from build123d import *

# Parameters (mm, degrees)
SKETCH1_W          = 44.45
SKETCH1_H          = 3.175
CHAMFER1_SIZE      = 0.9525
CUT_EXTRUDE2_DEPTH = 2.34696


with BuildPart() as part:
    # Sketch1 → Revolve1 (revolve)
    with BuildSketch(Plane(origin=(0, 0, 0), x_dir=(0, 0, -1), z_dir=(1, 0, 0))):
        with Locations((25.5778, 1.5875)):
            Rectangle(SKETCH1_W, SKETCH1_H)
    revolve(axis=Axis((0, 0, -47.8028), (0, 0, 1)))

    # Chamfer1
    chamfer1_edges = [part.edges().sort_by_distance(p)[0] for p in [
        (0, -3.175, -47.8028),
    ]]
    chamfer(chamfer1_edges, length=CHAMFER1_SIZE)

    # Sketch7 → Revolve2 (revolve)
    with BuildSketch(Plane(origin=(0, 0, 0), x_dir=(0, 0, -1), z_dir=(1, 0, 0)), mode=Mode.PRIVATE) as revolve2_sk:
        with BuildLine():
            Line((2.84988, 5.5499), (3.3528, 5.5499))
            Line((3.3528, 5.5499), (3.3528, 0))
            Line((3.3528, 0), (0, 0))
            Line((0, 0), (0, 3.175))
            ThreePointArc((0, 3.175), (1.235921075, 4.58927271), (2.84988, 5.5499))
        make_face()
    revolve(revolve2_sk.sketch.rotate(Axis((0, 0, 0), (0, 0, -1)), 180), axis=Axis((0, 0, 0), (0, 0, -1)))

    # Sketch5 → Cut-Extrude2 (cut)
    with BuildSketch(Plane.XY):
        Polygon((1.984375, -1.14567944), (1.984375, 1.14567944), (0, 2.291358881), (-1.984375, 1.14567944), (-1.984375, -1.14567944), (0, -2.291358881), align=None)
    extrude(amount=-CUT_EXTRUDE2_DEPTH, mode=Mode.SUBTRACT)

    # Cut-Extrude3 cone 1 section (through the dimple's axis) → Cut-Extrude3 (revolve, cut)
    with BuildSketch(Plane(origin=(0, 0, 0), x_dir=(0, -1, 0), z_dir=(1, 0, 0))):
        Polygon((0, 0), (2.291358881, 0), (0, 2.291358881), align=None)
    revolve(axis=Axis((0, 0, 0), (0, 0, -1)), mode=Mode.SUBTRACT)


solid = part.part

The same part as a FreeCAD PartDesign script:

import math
import FreeCAD as App
import Part
import Sketcher
from FreeCAD import Vector
Q = App.Units.Quantity


def edges_at(feature, points):
    """Names of the edges that pass closest to the given points."""
    edges = feature.Shape.Edges
    near = lambda p: min(range(len(edges)), key=lambda i: edges[i].distToShape(Part.Vertex(*p))[0])
    return sorted({f"Edge{near(p) + 1}" for p in points})

doc = App.newDocument("Part")
body = doc.addObject("PartDesign::Body", "Body")

# Sketch on YZ plane
sketch1 = body.newObject("Sketcher::SketchObject", "Sketch")
sketch1.AttachmentSupport = (doc.getObject("YZ_Plane"), [""])
sketch1.MapMode = "FlatFace"
sketch1.addGeometry([
    Part.LineSegment(Vector(3.175, -3.3528, 0), Vector(0, -3.3528, 0)),
    Part.LineSegment(Vector(0, -3.3528, 0), Vector(0, -47.8028, 0)),
    Part.LineSegment(Vector(0, -47.8028, 0), Vector(3.175, -47.8028, 0)),
    Part.LineSegment(Vector(3.175, -47.8028, 0), Vector(3.175, -3.3528, 0)),
], False)
sketch1.addConstraint([
    Sketcher.Constraint("Coincident", 0, 2, 1, 1),
    Sketcher.Constraint("Coincident", 1, 2, 2, 1),
    Sketcher.Constraint("Coincident", 2, 2, 3, 1),
    Sketcher.Constraint("Coincident", 3, 2, 0, 1),
    Sketcher.Constraint("Horizontal", 0),
    Sketcher.Constraint("Vertical", 1),
    Sketcher.Constraint("Horizontal", 2),
    Sketcher.Constraint("Vertical", 3),
    Sketcher.Constraint("PointOnObject", 0, 2, -2),
    Sketcher.Constraint("DistanceY", 1, 2, 1, 1, Q("1.75 in")),
    Sketcher.Constraint("DistanceX", 0, 2, 0, 1, Q("0.125 in")),
    Sketcher.Constraint("DistanceY", 0, 2, -1, 1, Q("0.132 in")),
])
revolution = body.newObject("PartDesign::Revolution", "Revolution")
revolution.Profile = sketch1
revolution.ReferenceAxis = (sketch1, ["V_Axis"])
revolution.Angle = 360
doc.recompute()

chamfer = body.newObject("PartDesign::Chamfer", "Chamfer")
chamfer.Base = (revolution, edges_at(revolution, [(0, -3.175, -47.803)]))
chamfer.Size = Q("0.0375 in")

# Sketch on YZ plane
sketch2 = body.newObject("Sketcher::SketchObject", "Sketch001")
sketch2.AttachmentSupport = (doc.getObject("YZ_Plane"), [""])
sketch2.MapMode = "FlatFace"
sketch2.addGeometry([
    Part.LineSegment(Vector(5.5499, -3.3528, 0), Vector(5.5499, -2.84988, 0)),  # 0
    Part.ArcOfCircle(Part.Circle(Vector(0, -5.060315, 0), Vector(0, 0, 1), 5.973894), math.radians(21.716589), math.radians(57.894553)),  # 1
    Part.LineSegment(Vector(3.175, 0, 0), Vector(0, 0, 0)),  # 2
    Part.LineSegment(Vector(0, 0, 0), Vector(0, -3.3528, 0)),  # 3
    Part.LineSegment(Vector(0, -3.3528, 0), Vector(5.5499, -3.3528, 0)),  # 4
], False)
sketch2.addConstraint([
    Sketcher.Constraint("Coincident", 0, 2, 1, 1),
    Sketcher.Constraint("Coincident", 1, 2, 2, 1),
    Sketcher.Constraint("Coincident", 2, 2, 3, 1),
    Sketcher.Constraint("Coincident", 3, 2, 4, 1),
    Sketcher.Constraint("Coincident", 4, 2, 0, 1),
    Sketcher.Constraint("Vertical", 0),
    Sketcher.Constraint("Horizontal", 2),
    Sketcher.Constraint("Vertical", 3),
    Sketcher.Constraint("Horizontal", 4),
    Sketcher.Constraint("Coincident", 2, 2, -1, 1),
    Sketcher.Constraint("PointOnObject", 1, 3, -2),
    Sketcher.Constraint("DistanceX", 2, 2, 2, 1, Q("0.125 in")),
    Sketcher.Constraint("DistanceY", 3, 2, 3, 1, Q("0.132 in")),
    Sketcher.Constraint("DistanceX", 4, 1, 4, 2, Q("0.2185 in")),
    Sketcher.Constraint("DistanceY", 0, 1, 0, 2, Q("0.0198 in")),
])
revolution2 = body.newObject("PartDesign::Revolution", "Revolution001")
revolution2.Profile = sketch2
revolution2.ReferenceAxis = (sketch2, ["V_Axis"])
revolution2.Angle = 360

# Sketch on XY plane
sketch3 = body.newObject("Sketcher::SketchObject", "Sketch002")
sketch3.AttachmentSupport = (doc.getObject("XY_Plane"), [""])
sketch3.MapMode = "FlatFace"
sketch3.addGeometry([
    Part.LineSegment(Vector(1.984375, -1.145679, 0), Vector(1.984375, 1.145679, 0)),  # 0
    Part.LineSegment(Vector(1.984375, 1.145679, 0), Vector(0, 2.291359, 0)),  # 1
    Part.LineSegment(Vector(0, 2.291359, 0), Vector(-1.984375, 1.145679, 0)),  # 2
    Part.LineSegment(Vector(-1.984375, 1.145679, 0), Vector(-1.984375, -1.145679, 0)),  # 3
    Part.LineSegment(Vector(-1.984375, -1.145679, 0), Vector(0, -2.291359, 0)),  # 4
    Part.LineSegment(Vector(0, -2.291359, 0), Vector(1.984375, -1.145679, 0)),  # 5
], False)
sketch3.addConstraint([
    Sketcher.Constraint("Coincident", 0, 2, 1, 1),
    Sketcher.Constraint("Coincident", 1, 2, 2, 1),
    Sketcher.Constraint("Coincident", 2, 2, 3, 1),
    Sketcher.Constraint("Coincident", 3, 2, 4, 1),
    Sketcher.Constraint("Coincident", 4, 2, 5, 1),
    Sketcher.Constraint("Coincident", 5, 2, 0, 1),
    Sketcher.Constraint("Vertical", 0),
    Sketcher.Constraint("Vertical", 3),
    Sketcher.Constraint("Symmetric", 0, 2, 3, 2, -1, 1),
    Sketcher.Constraint("Symmetric", 1, 2, 4, 2, -1, 1),
    Sketcher.Constraint("PointOnObject", 1, 2, -2),
    Sketcher.Constraint("Parallel", 2, 5),
    Sketcher.Constraint("Horizontal", 0, 2, 2, 2),
    Sketcher.Constraint("Angle", 1, Q("150 deg")),
    Sketcher.Constraint("DistanceX", -1, 1, 0, 2, Q("0.078125 in")),
    Sketcher.Constraint("DistanceY", 0, 1, 0, 2, 2.291359),
])
pocket1 = body.newObject("PartDesign::Pocket", "Pocket")
pocket1.Profile = sketch3
pocket1.Length = Q("0.0924 in")

# Sketch on YZ plane
sketch4 = body.newObject("Sketcher::SketchObject", "Sketch003")
sketch4.AttachmentSupport = (doc.getObject("YZ_Plane"), [""])
sketch4.MapMode = "FlatFace"
sketch4.addGeometry([
    Part.LineSegment(Vector(0, 0, 0), Vector(-2.291359, 0, 0)),
    Part.LineSegment(Vector(-2.291359, 0, 0), Vector(0, -2.291359, 0)),
    Part.LineSegment(Vector(0, -2.291359, 0), Vector(0, 0, 0)),
], False)
sketch4.addConstraint([
    Sketcher.Constraint("Coincident", 0, 2, 1, 1),
    Sketcher.Constraint("Coincident", 1, 2, 2, 1),
    Sketcher.Constraint("Coincident", 2, 2, 0, 1),
    Sketcher.Constraint("Horizontal", 0),
    Sketcher.Constraint("Vertical", 2),
    Sketcher.Constraint("Coincident", 2, 2, -1, 1),
    Sketcher.Constraint("Equal", 0, 2),
    Sketcher.Constraint("DistanceX", 0, 2, 0, 1, 2.291359),
])
groove = body.newObject("PartDesign::Groove", "Groove")
groove.Profile = sketch4
groove.ReferenceAxis = (sketch4, ["V_Axis"])
groove.Angle = 360

doc.recompute()
